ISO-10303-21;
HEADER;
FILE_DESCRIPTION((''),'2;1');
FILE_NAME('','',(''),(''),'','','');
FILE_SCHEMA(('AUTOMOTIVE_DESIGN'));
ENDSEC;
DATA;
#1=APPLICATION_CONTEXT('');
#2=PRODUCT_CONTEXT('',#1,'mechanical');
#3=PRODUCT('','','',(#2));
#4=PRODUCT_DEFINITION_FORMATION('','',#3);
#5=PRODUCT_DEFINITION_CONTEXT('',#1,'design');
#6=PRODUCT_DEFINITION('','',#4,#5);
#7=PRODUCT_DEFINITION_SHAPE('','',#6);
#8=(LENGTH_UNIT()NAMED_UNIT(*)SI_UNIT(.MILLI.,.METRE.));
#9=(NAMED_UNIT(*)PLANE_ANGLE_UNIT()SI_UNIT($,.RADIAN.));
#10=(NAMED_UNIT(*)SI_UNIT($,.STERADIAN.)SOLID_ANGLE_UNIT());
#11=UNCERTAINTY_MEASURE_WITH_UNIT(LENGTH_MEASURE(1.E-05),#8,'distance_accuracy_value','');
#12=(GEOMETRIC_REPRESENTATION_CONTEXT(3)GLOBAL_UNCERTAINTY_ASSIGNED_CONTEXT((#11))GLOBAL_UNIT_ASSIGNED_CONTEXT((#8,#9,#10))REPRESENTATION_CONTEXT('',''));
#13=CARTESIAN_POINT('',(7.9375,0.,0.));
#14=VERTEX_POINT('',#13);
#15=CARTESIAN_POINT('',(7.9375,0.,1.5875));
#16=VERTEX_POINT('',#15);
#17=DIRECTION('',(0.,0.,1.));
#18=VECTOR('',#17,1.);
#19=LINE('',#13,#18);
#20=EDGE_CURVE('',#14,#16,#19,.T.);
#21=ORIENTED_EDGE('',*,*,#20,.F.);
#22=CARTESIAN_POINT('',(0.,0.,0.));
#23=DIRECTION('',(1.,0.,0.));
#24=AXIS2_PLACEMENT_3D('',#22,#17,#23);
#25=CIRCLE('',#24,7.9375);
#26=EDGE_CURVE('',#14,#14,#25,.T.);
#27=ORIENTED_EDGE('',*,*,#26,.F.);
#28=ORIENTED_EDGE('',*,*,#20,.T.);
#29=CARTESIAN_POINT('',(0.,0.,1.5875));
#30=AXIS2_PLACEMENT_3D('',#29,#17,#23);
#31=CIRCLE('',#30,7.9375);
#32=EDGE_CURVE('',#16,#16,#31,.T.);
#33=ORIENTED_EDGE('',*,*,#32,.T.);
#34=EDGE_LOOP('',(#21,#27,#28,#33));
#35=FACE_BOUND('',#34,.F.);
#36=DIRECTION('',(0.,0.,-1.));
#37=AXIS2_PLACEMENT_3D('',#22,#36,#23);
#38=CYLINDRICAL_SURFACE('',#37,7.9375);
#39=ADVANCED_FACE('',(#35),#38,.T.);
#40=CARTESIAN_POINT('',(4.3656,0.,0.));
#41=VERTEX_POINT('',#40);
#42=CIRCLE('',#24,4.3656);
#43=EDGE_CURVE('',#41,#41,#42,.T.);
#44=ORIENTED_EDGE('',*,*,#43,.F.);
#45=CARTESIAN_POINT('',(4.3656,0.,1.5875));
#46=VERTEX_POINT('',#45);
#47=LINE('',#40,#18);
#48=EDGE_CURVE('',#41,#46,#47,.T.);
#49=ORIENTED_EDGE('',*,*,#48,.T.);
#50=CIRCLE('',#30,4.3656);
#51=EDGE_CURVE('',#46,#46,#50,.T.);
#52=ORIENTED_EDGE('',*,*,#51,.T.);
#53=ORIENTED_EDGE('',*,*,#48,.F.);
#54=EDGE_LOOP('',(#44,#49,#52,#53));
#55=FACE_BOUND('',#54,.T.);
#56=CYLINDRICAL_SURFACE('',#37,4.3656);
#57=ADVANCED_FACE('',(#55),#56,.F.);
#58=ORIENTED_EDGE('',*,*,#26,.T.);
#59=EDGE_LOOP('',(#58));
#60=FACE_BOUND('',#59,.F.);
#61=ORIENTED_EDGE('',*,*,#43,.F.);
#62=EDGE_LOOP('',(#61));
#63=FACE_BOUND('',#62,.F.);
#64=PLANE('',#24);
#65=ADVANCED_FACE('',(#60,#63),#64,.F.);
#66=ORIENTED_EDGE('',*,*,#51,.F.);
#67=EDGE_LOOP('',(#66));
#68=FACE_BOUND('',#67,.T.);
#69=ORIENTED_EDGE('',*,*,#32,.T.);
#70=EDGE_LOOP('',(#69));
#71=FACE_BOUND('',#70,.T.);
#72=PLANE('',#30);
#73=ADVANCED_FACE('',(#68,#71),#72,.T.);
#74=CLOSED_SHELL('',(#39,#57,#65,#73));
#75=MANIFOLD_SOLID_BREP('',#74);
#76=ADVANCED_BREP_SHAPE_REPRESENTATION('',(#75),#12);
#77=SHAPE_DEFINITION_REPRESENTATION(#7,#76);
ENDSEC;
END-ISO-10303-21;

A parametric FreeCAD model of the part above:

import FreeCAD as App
import Part
import Sketcher
Q = App.Units.Quantity

doc = App.newDocument("Part")
body = doc.addObject("PartDesign::Body", "Body")

sketch1 = doc.addObject("Sketcher::SketchObject", "Sketch")
body.addObject(sketch1)
sketch1.AttachmentSupport = (doc.XY_Plane, [""])
sketch1.MapMode = "FlatFace"
sketch1.addGeometry([
    Part.Circle(App.Vector(0, 0, 0), App.Vector(0, 0, 1), 7.9),
    Part.Circle(App.Vector(0, 0, 0), App.Vector(0, 0, 1), 4.4),
], False)
sketch1.addConstraint([
    Sketcher.Constraint("Coincident", 0, 3, -1, 1),
    Sketcher.Constraint("Coincident", 1, 3, -1, 1),
    Sketcher.Constraint("Diameter", 0, Q("0.625 in")),
    Sketcher.Constraint("Diameter", 1, Q("0.343748 in")),
])
pad1 = doc.addObject("PartDesign::Pad", "Pad")
body.addObject(pad1)
pad1.Profile = sketch1
pad1.Length = Q("0.0625 in")

doc.recompute()
